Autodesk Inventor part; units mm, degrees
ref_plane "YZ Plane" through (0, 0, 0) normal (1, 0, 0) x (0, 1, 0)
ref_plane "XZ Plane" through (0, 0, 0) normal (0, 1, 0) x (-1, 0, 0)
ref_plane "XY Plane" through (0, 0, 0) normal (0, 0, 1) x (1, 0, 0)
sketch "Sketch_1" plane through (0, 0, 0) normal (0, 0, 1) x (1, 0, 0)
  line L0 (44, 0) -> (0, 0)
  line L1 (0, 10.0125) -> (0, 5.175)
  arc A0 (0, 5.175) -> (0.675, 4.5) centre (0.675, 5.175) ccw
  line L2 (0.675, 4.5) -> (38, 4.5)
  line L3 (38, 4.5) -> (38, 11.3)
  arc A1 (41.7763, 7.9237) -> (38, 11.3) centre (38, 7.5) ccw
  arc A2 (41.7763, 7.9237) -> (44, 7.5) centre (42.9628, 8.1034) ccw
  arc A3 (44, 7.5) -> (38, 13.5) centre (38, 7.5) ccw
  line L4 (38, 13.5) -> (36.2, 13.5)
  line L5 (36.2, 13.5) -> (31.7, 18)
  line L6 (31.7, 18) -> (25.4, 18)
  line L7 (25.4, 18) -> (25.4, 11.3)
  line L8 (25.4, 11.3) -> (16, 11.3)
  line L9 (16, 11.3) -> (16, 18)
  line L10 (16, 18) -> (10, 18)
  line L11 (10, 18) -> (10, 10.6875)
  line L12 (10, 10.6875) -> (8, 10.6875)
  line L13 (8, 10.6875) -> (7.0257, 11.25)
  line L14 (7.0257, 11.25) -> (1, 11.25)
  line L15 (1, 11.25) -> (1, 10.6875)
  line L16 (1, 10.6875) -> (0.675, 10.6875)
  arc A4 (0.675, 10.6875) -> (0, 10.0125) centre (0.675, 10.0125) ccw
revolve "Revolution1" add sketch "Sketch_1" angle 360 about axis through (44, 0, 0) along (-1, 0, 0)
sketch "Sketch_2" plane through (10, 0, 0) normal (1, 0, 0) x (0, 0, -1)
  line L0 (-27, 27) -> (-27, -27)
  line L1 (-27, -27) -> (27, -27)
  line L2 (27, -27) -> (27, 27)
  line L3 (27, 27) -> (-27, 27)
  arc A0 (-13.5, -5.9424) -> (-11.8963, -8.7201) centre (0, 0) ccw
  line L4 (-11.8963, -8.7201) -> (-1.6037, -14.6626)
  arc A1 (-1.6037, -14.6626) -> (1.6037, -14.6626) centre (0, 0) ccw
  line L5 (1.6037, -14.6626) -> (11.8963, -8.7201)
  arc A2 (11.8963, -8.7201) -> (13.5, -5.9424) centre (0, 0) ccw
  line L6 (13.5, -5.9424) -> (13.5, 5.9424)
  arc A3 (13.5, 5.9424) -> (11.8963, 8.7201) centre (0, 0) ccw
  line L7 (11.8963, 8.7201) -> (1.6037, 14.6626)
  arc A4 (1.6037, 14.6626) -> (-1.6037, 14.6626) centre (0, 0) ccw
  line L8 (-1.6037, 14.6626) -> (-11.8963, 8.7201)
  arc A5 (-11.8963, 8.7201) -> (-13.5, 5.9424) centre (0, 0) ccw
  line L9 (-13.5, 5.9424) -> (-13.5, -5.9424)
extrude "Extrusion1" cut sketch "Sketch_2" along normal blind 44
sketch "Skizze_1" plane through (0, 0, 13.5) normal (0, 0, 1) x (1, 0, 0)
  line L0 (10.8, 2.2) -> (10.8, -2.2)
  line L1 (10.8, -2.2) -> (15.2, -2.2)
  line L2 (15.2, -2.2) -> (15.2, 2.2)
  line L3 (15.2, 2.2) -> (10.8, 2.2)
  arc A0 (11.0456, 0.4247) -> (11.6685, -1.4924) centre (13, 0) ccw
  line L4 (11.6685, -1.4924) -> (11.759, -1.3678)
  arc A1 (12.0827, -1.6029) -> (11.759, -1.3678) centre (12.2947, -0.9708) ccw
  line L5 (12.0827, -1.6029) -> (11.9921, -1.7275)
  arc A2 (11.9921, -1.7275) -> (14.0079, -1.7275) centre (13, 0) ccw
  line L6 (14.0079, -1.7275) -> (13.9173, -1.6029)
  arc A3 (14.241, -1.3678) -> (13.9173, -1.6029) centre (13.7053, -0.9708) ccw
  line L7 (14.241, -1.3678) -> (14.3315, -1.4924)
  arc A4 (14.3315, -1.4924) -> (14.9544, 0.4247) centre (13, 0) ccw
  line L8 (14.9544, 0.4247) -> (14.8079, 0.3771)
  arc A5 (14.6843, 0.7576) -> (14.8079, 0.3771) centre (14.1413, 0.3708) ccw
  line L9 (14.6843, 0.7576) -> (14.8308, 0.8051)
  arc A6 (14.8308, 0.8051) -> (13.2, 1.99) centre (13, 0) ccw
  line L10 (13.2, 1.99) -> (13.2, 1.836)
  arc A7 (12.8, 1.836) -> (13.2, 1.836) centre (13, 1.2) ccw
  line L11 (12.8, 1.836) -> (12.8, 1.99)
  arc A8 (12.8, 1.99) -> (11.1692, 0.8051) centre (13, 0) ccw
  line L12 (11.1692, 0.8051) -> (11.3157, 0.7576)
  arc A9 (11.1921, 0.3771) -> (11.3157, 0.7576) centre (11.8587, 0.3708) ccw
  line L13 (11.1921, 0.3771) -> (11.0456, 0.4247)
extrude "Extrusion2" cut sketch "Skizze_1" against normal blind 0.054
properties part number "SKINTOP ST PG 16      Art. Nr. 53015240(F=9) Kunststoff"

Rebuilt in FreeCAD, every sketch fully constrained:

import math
import FreeCAD as App
import Part
import Sketcher
Q = App.Units.Quantity


def add_polygon(sketch, points):
    """Adds a closed chain of lines whose ends are joined by coincident constraints."""
    first, n = sketch.GeometryCount, len(points)
    for a, b in zip(points, points[1:] + points[:1]):
        sketch.addGeometry(Part.LineSegment(App.Vector(*a, 0), App.Vector(*b, 0)), False)
    for i in range(n):
        sketch.addConstraint(Sketcher.Constraint("Coincident", first + i, 2, first + (i + 1) % n, 1))

doc = App.newDocument("Part")
body = doc.addObject("PartDesign::Body", "Body")

sketch1 = doc.addObject("Sketcher::SketchObject", "Sketch")
body.addObject(sketch1)
sketch1.AttachmentSupport = (doc.XY_Plane, [""])
sketch1.MapMode = "FlatFace"
sketch1.addGeometry([
    Part.ArcOfCircle(Part.Circle(App.Vector(0.675, 10.0125, 0), App.Vector(0, 0, 1), 0.675), math.radians(90), math.radians(180)),
    Part.LineSegment(App.Vector(0, 10.0125, 0), App.Vector(0, 5.175, 0)),
    Part.ArcOfCircle(Part.Circle(App.Vector(0.675, 5.175, 0), App.Vector(0, 0, 1), 0.675), math.radians(180), math.radians(270)),
    Part.LineSegment(App.Vector(0.675, 4.5, 0), App.Vector(38, 4.5, 0)),
    Part.LineSegment(App.Vector(38, 4.5, 0), App.Vector(38, 11.3, 0)),
    Part.ArcOfCircle(Part.Circle(App.Vector(38, 7.5, 0), App.Vector(0, 0, 1), 3.799995), math.radians(6.401799), math.radians(90)),
    Part.ArcOfCircle(Part.Circle(App.Vector(42.9628, 8.1034, 0), App.Vector(0, 0, 1), 1.200031), math.radians(-171.387785), math.radians(-30.189072)),
    Part.ArcOfCircle(Part.Circle(App.Vector(38, 7.5, 0), App.Vector(0, 0, 1), 6), math.radians(0), math.radians(90)),
    Part.LineSegment(App.Vector(38, 13.5, 0), App.Vector(36.2, 13.5, 0)),
    Part.LineSegment(App.Vector(36.2, 13.5, 0), App.Vector(31.7, 18, 0)),
    Part.LineSegment(App.Vector(31.7, 18, 0), App.Vector(25.4, 18, 0)),
    Part.LineSegment(App.Vector(25.4, 18, 0), App.Vector(25.4, 11.3, 0)),
    Part.LineSegment(App.Vector(25.4, 11.3, 0), App.Vector(16, 11.3, 0)),
    Part.LineSegment(App.Vector(16, 11.3, 0), App.Vector(16, 18, 0)),
    Part.LineSegment(App.Vector(16, 18, 0), App.Vector(10, 18, 0)),
    Part.LineSegment(App.Vector(10, 18, 0), App.Vector(10, 10.6875, 0)),
    Part.LineSegment(App.Vector(10, 10.6875, 0), App.Vector(8, 10.6875, 0)),
    Part.LineSegment(App.Vector(8, 10.6875, 0), App.Vector(7.0257, 11.25, 0)),
    Part.LineSegment(App.Vector(7.0257, 11.25, 0), App.Vector(1, 11.25, 0)),
    Part.LineSegment(App.Vector(1, 11.25, 0), App.Vector(1, 10.6875, 0)),
    Part.LineSegment(App.Vector(1, 10.6875, 0), App.Vector(0.675, 10.6875, 0)),
], False)
sketch1.addConstraint([
    Sketcher.Constraint("Tangent", 0, 2, 1, 1),
    Sketcher.Constraint("Tangent", 1, 2, 2, 1),
    Sketcher.Constraint("Tangent", 2, 2, 3, 1),
    Sketcher.Constraint("Coincident", 3, 2, 4, 1),
    Sketcher.Constraint("Coincident", 4, 2, 5, 2),
    Sketcher.Constraint("Coincident", 5, 1, 6, 1),
    Sketcher.Constraint("Coincident", 6, 2, 7, 1),
    Sketcher.Constraint("Tangent", 7, 2, 8, 1),
    Sketcher.Constraint("Coincident", 8, 2, 9, 1),
    Sketcher.Constraint("Coincident", 9, 2, 10, 1),
    Sketcher.Constraint("Coincident", 10, 2, 11, 1),
    Sketcher.Constraint("Coincident", 11, 2, 12, 1),
    Sketcher.Constraint("Coincident", 12, 2, 13, 1),
    Sketcher.Constraint("Coincident", 13, 2, 14, 1),
    Sketcher.Constraint("Coincident", 14, 2, 15, 1),
    Sketcher.Constraint("Coincident", 15, 2, 16, 1),
    Sketcher.Constraint("Coincident", 16, 2, 17, 1),
    Sketcher.Constraint("Coincident", 17, 2, 18, 1),
    Sketcher.Constraint("Coincident", 18, 2, 19, 1),
    Sketcher.Constraint("Coincident", 19, 2, 20, 1),
    Sketcher.Constraint("Tangent", 20, 2, 0, 1),
    Sketcher.Constraint("Vertical", 1),
    Sketcher.Constraint("Horizontal", 3),
    Sketcher.Constraint("Vertical", 4),
    Sketcher.Constraint("Horizontal", 8),
    Sketcher.Constraint("Horizontal", 10),
    Sketcher.Constraint("Vertical", 11),
    Sketcher.Constraint("Horizontal", 12),
    Sketcher.Constraint("Vertical", 13),
    Sketcher.Constraint("Horizontal", 14),
    Sketcher.Constraint("Vertical", 15),
    Sketcher.Constraint("Horizontal", 16),
    Sketcher.Constraint("Horizontal", 18),
    Sketcher.Constraint("Vertical", 19),
    Sketcher.Constraint("Horizontal", 20),
    Sketcher.Constraint("Coincident", 7, 3, 5, 3),
    Sketcher.Constraint("Equal", 0, 2),
    Sketcher.Constraint("PointOnObject", 0, 2, -2),
    Sketcher.Constraint("Horizontal", 7, 3, 6, 2),
    Sketcher.Constraint("Horizontal", 4, 2, 11, 2),
    Sketcher.Constraint("Horizontal", 10, 2, 13, 2),
    Sketcher.Constraint("Horizontal", 16, 2, 19, 2),
    Sketcher.Constraint("Vertical", 7, 3, 3, 2),
    Sketcher.Constraint("Radius", 7, 6.0),
    Sketcher.Constraint("Radius", 5, 3.8),
    Sketcher.Constraint("Radius", 6, 1.2),
    Sketcher.Constraint("DistanceX", 14, 2, 14, 1, 6.0),
    Sketcher.Constraint("DistanceX", 16, 2, 16, 1, 2.0),
    Sketcher.Constraint("Angle", 9, Q("135 deg")),
    Sketcher.Constraint("Angle", 17, Q("150.0005 deg")),
    Sketcher.Constraint("DistanceX", 8, 2, 8, 1, 1.8),
    Sketcher.Constraint("DistanceX", 10, 2, 10, 1, 6.3),
    Sketcher.Constraint("DistanceX", 12, 2, 12, 1, 9.4),
    Sketcher.Constraint("DistanceY", 4, 1, 4, 2, 6.8),
    Sketcher.Constraint("DistanceY", 11, 2, 11, 1, 6.7),
    Sketcher.Constraint("DistanceX", -1, 1, 5, 3, 38.0),
    Sketcher.Constraint("DistanceY", -1, 1, 9, 2, 18.0),
    Sketcher.Constraint("DistanceX", -1, 1, 18, 2, 1.0),
    Sketcher.Constraint("Radius", 0, 0.675),
    Sketcher.Constraint("DistanceY", -1, 1, 17, 2, 11.25),
    Sketcher.Constraint("Distance", 17, 1.125),
    Sketcher.Constraint("DistanceY", 6, 3, 0, 3, 1.909),
])
revolution = doc.addObject("PartDesign::Revolution", "Revolution")
body.addObject(revolution)
revolution.Profile = sketch1
revolution.ReferenceAxis = (sketch1, ["H_Axis"])
revolution.Angle = 360

sketch2 = doc.addObject("Sketcher::SketchObject", "Sketch001")
body.addObject(sketch2)
sketch2.AttachmentSupport = (doc.YZ_Plane, [""])
sketch2.MapMode = "FlatFace"
sketch2.AttachmentOffset = App.Placement(App.Vector(0, 0, 10), App.Rotation())
add_polygon(sketch2, [(27, -27), (27, 27), (-27, 27), (-27, -27)])
sketch2.addGeometry(Part.ArcOfCircle(Part.Circle(App.Vector(0, 0, 0), App.Vector(0, 0, 1), 14.749986), math.radians(113.758028), math.radians(126.241767)), False)
sketch2.addGeometry(Part.LineSegment(App.Vector(-5.9424, 13.5, 0), App.Vector(5.9424, 13.5, 0)), False)
sketch2.addGeometry(Part.ArcOfCircle(Part.Circle(App.Vector(0, 0, 0), App.Vector(0, 0, 1), 14.75004), math.radians(53.758233), math.radians(66.241972)), False)
sketch2.addGeometry(Part.LineSegment(App.Vector(8.7201, 11.8963, 0), App.Vector(14.6626, 1.6037, 0)), False)
sketch2.addGeometry(Part.ArcOfCircle(Part.Circle(App.Vector(0, 0, 0), App.Vector(0, 0, 1), 14.75004), math.radians(-6.24183), math.radians(6.24183)), False)
sketch2.addGeometry(Part.LineSegment(App.Vector(14.6626, -1.6037, 0), App.Vector(8.7201, -11.8963, 0)), False)
sketch2.addGeometry(Part.ArcOfCircle(Part.Circle(App.Vector(0, 0, 0), App.Vector(0, 0, 1), 14.749986), math.radians(-66.241972), math.radians(-53.758233)), False)
sketch2.addGeometry(Part.LineSegment(App.Vector(5.9424, -13.5, 0), App.Vector(-5.9424, -13.5, 0)), False)
sketch2.addGeometry(Part.ArcOfCircle(Part.Circle(App.Vector(0, 0, 0), App.Vector(0, 0, 1), 14.75004), math.radians(-126.241767), math.radians(-113.758028)), False)
sketch2.addGeometry(Part.LineSegment(App.Vector(-8.7201, -11.8963, 0), App.Vector(-14.6626, -1.6037, 0)), False)
sketch2.addGeometry(Part.ArcOfCircle(Part.Circle(App.Vector(0, 0, 0), App.Vector(0, 0, 1), 14.75004), math.radians(173.75817), math.radians(186.24183)), False)
sketch2.addGeometry(Part.LineSegment(App.Vector(-14.6626, 1.6037, 0), App.Vector(-8.7201, 11.8963, 0)), False)
sketch2.addConstraint([
    Sketcher.Constraint("Coincident", 4, 1, 5, 1),
    Sketcher.Constraint("Coincident", 5, 2, 6, 2),
    Sketcher.Constraint("Coincident", 6, 1, 7, 1),
    Sketcher.Constraint("Coincident", 7, 2, 8, 2),
    Sketcher.Constraint("Coincident", 8, 1, 9, 1),
    Sketcher.Constraint("Coincident", 9, 2, 10, 2),
    Sketcher.Constraint("Coincident", 10, 1, 11, 1),
    Sketcher.Constraint("Coincident", 11, 2, 12, 2),
    Sketcher.Constraint("Coincident", 12, 1, 13, 1),
    Sketcher.Constraint("Coincident", 13, 2, 14, 2),
    Sketcher.Constraint("Coincident", 14, 1, 15, 1),
    Sketcher.Constraint("Coincident", 15, 2, 4, 2),
    Sketcher.Constraint("Vertical", 0),
    Sketcher.Constraint("Horizontal", 1),
    Sketcher.Constraint("Vertical", 2),
    Sketcher.Constraint("Horizontal", 3),
    Sketcher.Constraint("Horizontal", 5),
    Sketcher.Constraint("Horizontal", 11),
    Sketcher.Constraint("Coincident", 4, 3, -1, 1),
    Sketcher.Constraint("Coincident", 6, 3, -1, 1),
    Sketcher.Constraint("Coincident", 8, 3, -1, 1),
    Sketcher.Constraint("Coincident", 10, 3, -1, 1),
    Sketcher.Constraint("Coincident", 12, 3, -1, 1),
    Sketcher.Constraint("Coincident", 14, 3, -1, 1),
    Sketcher.Constraint("Equal", 4, 6),
    Sketcher.Constraint("Equal", 6, 8),
    Sketcher.Constraint("Equal", 8, 10),
    Sketcher.Constraint("Equal", 10, 12),
    Sketcher.Constraint("Equal", 12, 14),
    Sketcher.Constraint("Symmetric", 0, 2, 2, 2, -1, 1),
    Sketcher.Constraint("Parallel", 7, 13),
    Sketcher.Constraint("Parallel", 9, 15),
    Sketcher.Constraint("Horizontal", 9, 2, 12, 1),
    Sketcher.Constraint("Horizontal", 8, 1, 13, 2),
    Sketcher.Constraint("Horizontal", 7, 2, 14, 1),
    Sketcher.Constraint("Vertical", 7, 2, 8, 1),
    Sketcher.Constraint("Vertical", 5, 2, 10, 1),
    Sketcher.Constraint("Equal", 3, 0),
    Sketcher.Constraint("DistanceX", 1, 2, 1, 1, 54.0),
    Sketcher.Constraint("Angle", 7, Q("-59.9997 deg")),
    Sketcher.Constraint("Radius", 4, 14.75),
    Sketcher.Constraint("DistanceY", -1, 1, 4, 1, 13.5),
    Sketcher.Constraint("DistanceX", -1, 1, 9, 2, 8.72),
])
pocket1 = doc.addObject("PartDesign::Pocket", "Pocket")
body.addObject(pocket1)
pocket1.Profile = sketch2
pocket1.Length = 44
pocket1.Reversed = True

sketch3 = doc.addObject("Sketcher::SketchObject", "Sketch002")
body.addObject(sketch3)
sketch3.AttachmentSupport = (doc.XY_Plane, [""])
sketch3.MapMode = "FlatFace"
sketch3.AttachmentOffset = App.Placement(App.Vector(0, 0, 13.5), App.Rotation())
add_polygon(sketch3, [(15.2, 2.2), (10.8, 2.2), (10.8, -2.2), (15.2, -2.2)])
sketch3.addGeometry(Part.ArcOfCircle(Part.Circle(App.Vector(13, 0, 0), App.Vector(0, 0, 1), 2.000038), math.radians(167.739973), math.radians(228.261069)), False)
sketch3.addGeometry(Part.LineSegment(App.Vector(11.0456, 0.4247, 0), App.Vector(11.1921, 0.3771, 0)), False)
sketch3.addGeometry(Part.ArcOfCircle(Part.Circle(App.Vector(11.8587, 0.3708, 0), App.Vector(0, 0, 1), 0.66663), math.radians(179.458517), math.radians(504.536252)), False)
sketch3.addGeometry(Part.LineSegment(App.Vector(11.3157, 0.7576, 0), App.Vector(11.1692, 0.8051, 0)), False)
sketch3.addGeometry(Part.ArcOfCircle(Part.Circle(App.Vector(13, 0, 0), App.Vector(0, 0, 1), 2.000004), math.radians(95.739098), math.radians(156.262358)), False)
sketch3.addGeometry(Part.LineSegment(App.Vector(12.8, 1.99, 0), App.Vector(12.8, 1.836, 0)), False)
sketch3.addGeometry(Part.ArcOfCircle(Part.Circle(App.Vector(13, 1.2, 0), App.Vector(0, 0, 1), 0.666705), math.radians(107.456558), math.radians(432.543442)), False)
sketch3.addGeometry(Part.LineSegment(App.Vector(13.2, 1.836, 0), App.Vector(13.2, 1.99, 0)), False)
sketch3.addGeometry(Part.ArcOfCircle(Part.Circle(App.Vector(13, 0, 0), App.Vector(0, 0, 1), 2.000038), math.radians(23.737642), math.radians(84.260902)), False)
sketch3.addGeometry(Part.LineSegment(App.Vector(14.8308, 0.8051, 0), App.Vector(14.6843, 0.7576, 0)), False)
sketch3.addGeometry(Part.ArcOfCircle(Part.Circle(App.Vector(14.1413, 0.3708, 0), App.Vector(0, 0, 1), 0.666681), math.radians(35.463748), math.radians(360.541483)), False)
sketch3.addGeometry(Part.LineSegment(App.Vector(14.8079, 0.3771, 0), App.Vector(14.9544, 0.4247, 0)), False)
sketch3.addGeometry(Part.ArcOfCircle(Part.Circle(App.Vector(13, 0, 0), App.Vector(0, 0, 1), 2.000004), math.radians(-48.261069), math.radians(12.260027)), False)
sketch3.addGeometry(Part.LineSegment(App.Vector(14.3315, -1.4924, 0), App.Vector(14.241, -1.3678, 0)), False)
sketch3.addGeometry(Part.ArcOfCircle(Part.Circle(App.Vector(13.7053, -0.9708, 0), App.Vector(0, 0, 1), 0.666771), math.radians(-36.541642), math.radians(288.540936)), False)
sketch3.addGeometry(Part.LineSegment(App.Vector(13.9173, -1.6029, 0), App.Vector(14.0079, -1.7275, 0)), False)
sketch3.addGeometry(Part.ArcOfCircle(Part.Circle(App.Vector(13, 0, 0), App.Vector(0, 0, 1), 2.00003), math.radians(-120.26118), math.radians(-59.73882)), False)
sketch3.addGeometry(Part.LineSegment(App.Vector(11.9921, -1.7275, 0), App.Vector(12.0827, -1.6029, 0)), False)
sketch3.addGeometry(Part.ArcOfCircle(Part.Circle(App.Vector(12.2947, -0.9708, 0), App.Vector(0, 0, 1), 0.666704), math.radians(-108.540936), math.radians(216.541642)), False)
sketch3.addGeometry(Part.LineSegment(App.Vector(11.759, -1.3678, 0), App.Vector(11.6685, -1.4924, 0)), False)
sketch3.addConstraint([
    Sketcher.Constraint("Coincident", 4, 1, 5, 1),
    Sketcher.Constraint("Coincident", 5, 2, 6, 1),
    Sketcher.Constraint("Coincident", 6, 2, 7, 1),
    Sketcher.Constraint("Coincident", 7, 2, 8, 2),
    Sketcher.Constraint("Coincident", 8, 1, 9, 1),
    Sketcher.Constraint("Coincident", 9, 2, 10, 1),
    Sketcher.Constraint("Coincident", 10, 2, 11, 1),
    Sketcher.Constraint("Coincident", 11, 2, 12, 2),
    Sketcher.Constraint("Coincident", 12, 1, 13, 1),
    Sketcher.Constraint("Coincident", 13, 2, 14, 1),
    Sketcher.Constraint("Coincident", 14, 2, 15, 1),
    Sketcher.Constraint("Coincident", 15, 2, 16, 2),
    Sketcher.Constraint("Coincident", 16, 1, 17, 1),
    Sketcher.Constraint("Coincident", 17, 2, 18, 1),
    Sketcher.Constraint("Coincident", 18, 2, 19, 1),
    Sketcher.Constraint("Coincident", 19, 2, 20, 2),
    Sketcher.Constraint("Coincident", 20, 1, 21, 1),
    Sketcher.Constraint("Coincident", 21, 2, 22, 1),
    Sketcher.Constraint("Coincident", 22, 2, 23, 1),
    Sketcher.Constraint("Coincident", 23, 2, 4, 2),
    Sketcher.Constraint("Horizontal", 0),
    Sketcher.Constraint("Vertical", 1),
    Sketcher.Constraint("Horizontal", 2),
    Sketcher.Constraint("Vertical", 3),
    Sketcher.Constraint("Vertical", 9),
    Sketcher.Constraint("Vertical", 11),
    Sketcher.Constraint("Coincident", 8, 3, 4, 3),
    Sketcher.Constraint("Coincident", 12, 3, 4, 3),
    Sketcher.Constraint("Coincident", 16, 3, 4, 3),
    Sketcher.Constraint("Coincident", 20, 3, 4, 3),
    Sketcher.Constraint("Equal", 4, 8),
    Sketcher.Constraint("Equal", 6, 10),
    Sketcher.Constraint("Equal", 8, 12),
    Sketcher.Constraint("Equal", 10, 14),
    Sketcher.Constraint("Equal", 12, 16),
    Sketcher.Constraint("Equal", 14, 18),
    Sketcher.Constraint("Equal", 16, 20),
    Sketcher.Constraint("Equal", 18, 22),
    Sketcher.Constraint("PointOnObject", 4, 3, -1),
    Sketcher.Constraint("Horizontal", 6, 3, 14, 3),
    Sketcher.Constraint("Horizontal", 18, 3, 22, 3),
    Sketcher.Constraint("Horizontal", 9, 2, 10, 2),
    Sketcher.Constraint("Horizontal", 8, 1, 11, 2),
    Sketcher.Constraint("Horizontal", 7, 2, 12, 1),
    Sketcher.Constraint("Horizontal", 6, 2, 13, 2),
    Sketcher.Constraint("Horizontal", 5, 2, 14, 2),
    Sketcher.Constraint("Horizontal", 4, 1, 15, 2),
    Sketcher.Constraint("Horizontal", 19, 2, 20, 1),
    Sketcher.Constraint("Horizontal", 18, 2, 21, 2),
    Sketcher.Constraint("Horizontal", 17, 2, 22, 2),
    Sketcher.Constraint("Horizontal", 16, 1, 23, 2),
    Sketcher.Constraint("Equal", 2, 1),
    Sketcher.Constraint("Equal", 5, 7),
    Sketcher.Constraint("Equal", 7, 13),
    Sketcher.Constraint("Equal", 15, 17),
    Sketcher.Constraint("Equal", 17, 19),
    Sketcher.Constraint("Equal", 19, 21),
    Sketcher.Constraint("Radius", 4, 2.0),
    Sketcher.Constraint("Angle", 5, Q("-17.9997 deg")),
    Sketcher.Constraint("DistanceX", 0, 2, 0, 1, 4.4),
    Sketcher.Constraint("DistanceX", -1, 1, 4, 3, 13.0),
    Sketcher.Constraint("DistanceY", 10, 3, 0, 2, 1.0),
    Sketcher.Constraint("DistanceY", -1, 1, 10, 3, 1.2),
    Sketcher.Constraint("DistanceX", -1, 1, 0, 2, 10.8),
    Sketcher.Constraint("DistanceX", -1, 1, 8, 1, 12.8),
    Sketcher.Constraint("Radius", 6, 0.6666),
    Sketcher.Constraint("DistanceX", 13, 2, 15, 2, 0.27),
    Sketcher.Constraint("Distance", 5, 0.154),
    Sketcher.Constraint("DistanceX", -1, 1, 5, 2, 11.192),
    Sketcher.Constraint("DistanceY", -1, 1, 7, 2, 0.805),
    Sketcher.Constraint("DistanceX", -1, 1, 17, 2, 14.241),
    Sketcher.Constraint("DistanceY", 18, 2, -1, 1, 1.603),
    Sketcher.Constraint("DistanceX", -1, 1, 19, 2, 14.008),
    Sketcher.Constraint("DistanceX", 18, 3, 14, 3, 0.436),
])
pocket2 = doc.addObject("PartDesign::Pocket", "Pocket001")
body.addObject(pocket2)
pocket2.Profile = sketch3
pocket2.Length = 0.054

doc.recompute()
